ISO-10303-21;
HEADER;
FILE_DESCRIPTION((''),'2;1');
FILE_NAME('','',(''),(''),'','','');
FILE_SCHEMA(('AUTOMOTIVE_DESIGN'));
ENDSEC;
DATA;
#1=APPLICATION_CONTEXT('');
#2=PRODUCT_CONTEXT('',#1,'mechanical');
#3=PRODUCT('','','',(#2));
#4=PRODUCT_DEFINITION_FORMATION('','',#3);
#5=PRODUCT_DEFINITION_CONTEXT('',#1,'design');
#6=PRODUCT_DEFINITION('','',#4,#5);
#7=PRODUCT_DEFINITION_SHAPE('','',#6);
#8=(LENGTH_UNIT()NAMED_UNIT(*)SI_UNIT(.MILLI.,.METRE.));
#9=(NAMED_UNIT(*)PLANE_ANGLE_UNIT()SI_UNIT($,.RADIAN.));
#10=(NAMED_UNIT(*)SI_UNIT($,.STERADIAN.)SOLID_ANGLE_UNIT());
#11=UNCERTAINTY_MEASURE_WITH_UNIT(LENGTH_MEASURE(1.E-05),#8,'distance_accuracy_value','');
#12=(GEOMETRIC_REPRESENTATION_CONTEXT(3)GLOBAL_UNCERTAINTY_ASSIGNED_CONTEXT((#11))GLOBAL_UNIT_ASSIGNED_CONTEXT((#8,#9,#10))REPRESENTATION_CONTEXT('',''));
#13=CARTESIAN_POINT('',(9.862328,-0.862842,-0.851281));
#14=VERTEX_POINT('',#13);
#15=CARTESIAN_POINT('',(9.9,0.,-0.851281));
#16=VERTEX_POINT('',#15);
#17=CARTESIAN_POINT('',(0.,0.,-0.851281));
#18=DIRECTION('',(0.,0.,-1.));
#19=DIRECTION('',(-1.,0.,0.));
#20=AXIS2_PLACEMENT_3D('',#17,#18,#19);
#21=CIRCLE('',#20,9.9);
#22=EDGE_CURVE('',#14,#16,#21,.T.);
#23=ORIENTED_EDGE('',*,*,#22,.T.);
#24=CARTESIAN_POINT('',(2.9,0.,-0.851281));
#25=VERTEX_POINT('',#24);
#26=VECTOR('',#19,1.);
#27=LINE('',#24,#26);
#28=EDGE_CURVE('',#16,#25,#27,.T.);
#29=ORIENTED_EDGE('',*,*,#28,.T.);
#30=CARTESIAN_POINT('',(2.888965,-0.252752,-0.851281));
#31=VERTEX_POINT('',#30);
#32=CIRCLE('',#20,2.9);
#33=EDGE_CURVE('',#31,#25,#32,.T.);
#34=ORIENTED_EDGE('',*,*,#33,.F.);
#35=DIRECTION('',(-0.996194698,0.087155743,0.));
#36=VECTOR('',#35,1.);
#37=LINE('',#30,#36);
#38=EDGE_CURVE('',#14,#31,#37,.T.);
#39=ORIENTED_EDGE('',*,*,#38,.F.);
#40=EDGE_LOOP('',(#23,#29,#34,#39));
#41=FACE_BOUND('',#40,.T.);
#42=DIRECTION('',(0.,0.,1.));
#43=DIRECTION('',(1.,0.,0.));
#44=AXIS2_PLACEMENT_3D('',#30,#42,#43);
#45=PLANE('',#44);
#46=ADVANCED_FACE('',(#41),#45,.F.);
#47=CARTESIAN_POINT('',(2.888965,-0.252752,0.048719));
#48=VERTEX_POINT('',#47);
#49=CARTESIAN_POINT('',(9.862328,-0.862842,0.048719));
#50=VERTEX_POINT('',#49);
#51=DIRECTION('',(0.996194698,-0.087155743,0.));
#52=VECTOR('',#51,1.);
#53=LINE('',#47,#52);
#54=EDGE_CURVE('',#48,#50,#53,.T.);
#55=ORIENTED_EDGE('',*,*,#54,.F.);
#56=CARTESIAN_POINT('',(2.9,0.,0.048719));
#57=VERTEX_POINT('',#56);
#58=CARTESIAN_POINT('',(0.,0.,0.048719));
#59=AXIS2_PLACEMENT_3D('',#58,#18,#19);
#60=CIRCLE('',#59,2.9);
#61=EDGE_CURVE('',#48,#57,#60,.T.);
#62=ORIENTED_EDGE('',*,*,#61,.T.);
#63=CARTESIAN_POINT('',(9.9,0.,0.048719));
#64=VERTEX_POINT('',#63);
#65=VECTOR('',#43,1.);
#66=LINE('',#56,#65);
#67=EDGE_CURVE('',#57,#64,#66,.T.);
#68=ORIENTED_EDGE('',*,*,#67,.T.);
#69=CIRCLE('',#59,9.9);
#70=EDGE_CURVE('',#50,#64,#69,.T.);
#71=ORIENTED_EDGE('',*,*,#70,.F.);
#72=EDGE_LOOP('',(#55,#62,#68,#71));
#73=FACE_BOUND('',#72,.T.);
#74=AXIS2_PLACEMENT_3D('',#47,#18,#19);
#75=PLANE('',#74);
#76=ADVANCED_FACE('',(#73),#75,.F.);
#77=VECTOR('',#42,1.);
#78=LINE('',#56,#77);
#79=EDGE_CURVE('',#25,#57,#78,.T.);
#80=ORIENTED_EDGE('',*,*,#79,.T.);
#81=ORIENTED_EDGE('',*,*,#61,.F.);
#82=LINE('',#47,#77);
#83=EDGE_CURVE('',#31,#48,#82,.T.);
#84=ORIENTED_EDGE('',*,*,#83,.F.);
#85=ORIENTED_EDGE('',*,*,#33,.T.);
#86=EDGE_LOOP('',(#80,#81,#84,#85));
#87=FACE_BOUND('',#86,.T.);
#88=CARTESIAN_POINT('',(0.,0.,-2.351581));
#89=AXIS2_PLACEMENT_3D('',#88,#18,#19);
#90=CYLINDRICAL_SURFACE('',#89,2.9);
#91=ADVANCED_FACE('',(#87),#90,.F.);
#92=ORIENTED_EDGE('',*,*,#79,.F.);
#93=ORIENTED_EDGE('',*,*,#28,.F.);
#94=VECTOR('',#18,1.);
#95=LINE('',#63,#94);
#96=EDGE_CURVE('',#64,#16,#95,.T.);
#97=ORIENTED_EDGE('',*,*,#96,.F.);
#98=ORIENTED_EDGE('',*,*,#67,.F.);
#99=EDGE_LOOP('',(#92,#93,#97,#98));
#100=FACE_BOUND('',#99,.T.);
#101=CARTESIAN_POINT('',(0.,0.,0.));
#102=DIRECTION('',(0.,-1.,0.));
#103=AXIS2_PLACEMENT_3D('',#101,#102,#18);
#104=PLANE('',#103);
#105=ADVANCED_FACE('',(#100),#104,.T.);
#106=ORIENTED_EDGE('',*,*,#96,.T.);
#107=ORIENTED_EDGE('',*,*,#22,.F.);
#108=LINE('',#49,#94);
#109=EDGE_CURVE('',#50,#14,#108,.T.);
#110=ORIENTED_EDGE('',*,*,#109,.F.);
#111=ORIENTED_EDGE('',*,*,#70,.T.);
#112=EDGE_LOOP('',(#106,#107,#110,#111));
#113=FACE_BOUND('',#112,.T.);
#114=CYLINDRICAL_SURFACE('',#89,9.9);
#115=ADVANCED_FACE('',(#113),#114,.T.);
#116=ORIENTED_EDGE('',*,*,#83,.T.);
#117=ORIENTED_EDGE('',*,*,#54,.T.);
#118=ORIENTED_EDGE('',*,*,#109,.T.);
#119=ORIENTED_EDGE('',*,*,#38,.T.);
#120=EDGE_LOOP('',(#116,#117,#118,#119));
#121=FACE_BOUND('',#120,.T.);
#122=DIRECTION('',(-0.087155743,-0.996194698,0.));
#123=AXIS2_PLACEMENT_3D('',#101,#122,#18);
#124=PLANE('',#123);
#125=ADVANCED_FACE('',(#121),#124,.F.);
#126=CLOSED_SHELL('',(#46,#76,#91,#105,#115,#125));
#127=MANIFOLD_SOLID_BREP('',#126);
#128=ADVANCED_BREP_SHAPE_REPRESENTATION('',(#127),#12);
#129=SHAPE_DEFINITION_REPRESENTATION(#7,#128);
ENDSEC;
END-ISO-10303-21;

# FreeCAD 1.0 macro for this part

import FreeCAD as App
import Part
import Sketcher

V = App.Vector


def add_polygon(sketch, points):
    """Adds a closed chain of lines whose ends are joined by coincident constraints."""
    first, n = sketch.GeometryCount, len(points)
    for a, b in zip(points, points[1:] + points[:1]):
        sketch.addGeometry(Part.LineSegment(App.Vector(*a, 0), App.Vector(*b, 0)), False)
    for i in range(n):
        sketch.addConstraint(Sketcher.Constraint("Coincident", first + i, 2, first + (i + 1) % n, 1))

doc = App.newDocument("Part")
body = doc.addObject("PartDesign::Body", "Body")

# Sketch on XZ plane
sketch1 = body.newObject("Sketcher::SketchObject", "Sketch")
sketch1.AttachmentSupport = (doc.getObject("XZ_Plane"), [""])
sketch1.MapMode = "FlatFace"
add_polygon(sketch1, [(2.9, -0.9), (2.9, 0), (9.9, 0), (9.9, -0.9)])  # lines 0-3
sketch1.addConstraint(Sketcher.Constraint("Vertical", 0))
sketch1.addConstraint(Sketcher.Constraint("Horizontal", 1))
sketch1.addConstraint(Sketcher.Constraint("Vertical", 2))
sketch1.addConstraint(Sketcher.Constraint("Horizontal", 3))
sketch1.addConstraint(Sketcher.Constraint("DistanceX", 1, 1, 1, 2, 7.0))
sketch1.addConstraint(Sketcher.Constraint("DistanceY", 0, 1, 0, 2, 0.9))
sketch1.addConstraint(Sketcher.Constraint("DistanceX", -1, 1, 0, 2, 2.9))
sketch1.addConstraint(Sketcher.Constraint("DistanceY", -1, 1, 0, 2, 0.048719))
revolution = body.newObject("PartDesign::Revolution", "Revolution")
revolution.Profile = sketch1
revolution.ReferenceAxis = (sketch1, ["V_Axis"])
revolution.Angle = 355

doc.recompute()
